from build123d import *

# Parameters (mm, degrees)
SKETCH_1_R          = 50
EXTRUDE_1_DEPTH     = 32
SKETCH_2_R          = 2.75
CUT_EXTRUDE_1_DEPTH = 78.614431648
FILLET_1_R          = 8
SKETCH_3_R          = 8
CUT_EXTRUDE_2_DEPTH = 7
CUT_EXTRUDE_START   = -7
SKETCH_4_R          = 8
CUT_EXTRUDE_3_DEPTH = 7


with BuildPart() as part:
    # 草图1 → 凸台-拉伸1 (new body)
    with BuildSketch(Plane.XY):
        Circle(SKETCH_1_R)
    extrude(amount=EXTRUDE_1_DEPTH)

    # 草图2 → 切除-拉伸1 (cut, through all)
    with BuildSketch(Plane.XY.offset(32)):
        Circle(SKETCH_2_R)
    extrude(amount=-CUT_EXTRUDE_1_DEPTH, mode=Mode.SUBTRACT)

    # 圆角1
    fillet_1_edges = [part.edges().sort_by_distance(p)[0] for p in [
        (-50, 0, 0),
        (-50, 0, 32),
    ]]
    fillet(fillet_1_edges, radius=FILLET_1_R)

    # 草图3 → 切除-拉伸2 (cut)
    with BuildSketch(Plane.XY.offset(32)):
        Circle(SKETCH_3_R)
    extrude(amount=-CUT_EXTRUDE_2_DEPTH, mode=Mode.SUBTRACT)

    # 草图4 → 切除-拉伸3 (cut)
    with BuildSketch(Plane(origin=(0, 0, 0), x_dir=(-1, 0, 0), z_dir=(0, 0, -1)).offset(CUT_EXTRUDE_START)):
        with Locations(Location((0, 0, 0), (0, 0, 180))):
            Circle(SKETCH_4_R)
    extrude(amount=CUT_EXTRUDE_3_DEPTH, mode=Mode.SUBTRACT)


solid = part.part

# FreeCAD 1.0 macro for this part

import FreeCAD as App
import Part
import Sketcher
Q = App.Units.Quantity


def edges_at(feature, points):
    """Names of the edges that pass closest to the given points."""
    edges = feature.Shape.Edges
    near = lambda p: min(range(len(edges)), key=lambda i: edges[i].distToShape(Part.Vertex(*p))[0])
    return sorted({f"Edge{near(p) + 1}" for p in points})

doc = App.newDocument("Part")
body = doc.addObject("PartDesign::Body", "Body")

sketch1 = body.newObject("Sketcher::SketchObject", "Sketch")
sketch1.AttachmentSupport = (doc.getObject("XY_Plane"), [""])
sketch1.MapMode = "FlatFace"
sketch1.addGeometry(Part.Circle(App.Vector(0, 0, 0), App.Vector(0, 0, 1), 50), False)
sketch1.addConstraint([
    Sketcher.Constraint("Coincident", 0, 3, -1, 1),
    Sketcher.Constraint("Diameter", 0, Q("100 mm")),
])
pad1 = body.newObject("PartDesign::Pad", "Pad")
pad1.Profile = sketch1
pad1.Length = 32

sketch2 = body.newObject("Sketcher::SketchObject", "Sketch001")
sketch2.AttachmentSupport = (doc.getObject("XY_Plane"), [""])
sketch2.MapMode = "FlatFace"
sketch2.AttachmentOffset = App.Placement(App.Vector(0, 0, 32), App.Rotation())
sketch2.addGeometry(Part.Circle(App.Vector(0, 0, 0), App.Vector(0, 0, 1), 2.8), False)
sketch2.addConstraint([
    Sketcher.Constraint("Coincident", 0, 3, -1, 1),
    Sketcher.Constraint("Diameter", 0, Q("5.5 mm")),
])
pocket1 = body.newObject("PartDesign::Pocket", "Pocket")
pocket1.Profile = sketch2
pocket1.Type = "ThroughAll"
doc.recompute()

fillet = body.newObject("PartDesign::Fillet", "Fillet")
fillet.Base = (pocket1, edges_at(pocket1, [(-50, 0, 0), (-50, 0, 32)]))
fillet.Radius = 8

sketch3 = body.newObject("Sketcher::SketchObject", "Sketch002")
sketch3.AttachmentSupport = (doc.getObject("XY_Plane"), [""])
sketch3.MapMode = "FlatFace"
sketch3.AttachmentOffset = App.Placement(App.Vector(0, 0, 32), App.Rotation())
sketch3.addGeometry(Part.Circle(App.Vector(0, 0, 0), App.Vector(0, 0, 1), 8), False)
sketch3.addConstraint([
    Sketcher.Constraint("Coincident", 0, 3, -1, 1),
    Sketcher.Constraint("Diameter", 0, Q("16 mm")),
])
pocket2 = body.newObject("PartDesign::Pocket", "Pocket001")
pocket2.Profile = sketch3
pocket2.Length = 7

sketch4 = body.newObject("Sketcher::SketchObject", "Sketch003")
sketch4.AttachmentSupport = (doc.getObject("XY_Plane"), [""])
sketch4.MapMode = "FlatFace"
sketch4.AttachmentOffset = App.Placement(App.Vector(0, 0, 7), App.Rotation())
sketch4.addGeometry(Part.Circle(App.Vector(0, 0, 0), App.Vector(0, 0, 1), 8), False)
sketch4.addConstraint([
    Sketcher.Constraint("Coincident", 0, 3, -1, 1),
    Sketcher.Constraint("Diameter", 0, Q("16 mm")),
])
pocket3 = body.newObject("PartDesign::Pocket", "Pocket002")
pocket3.Profile = sketch4
pocket3.Length = 7

doc.recompute()
